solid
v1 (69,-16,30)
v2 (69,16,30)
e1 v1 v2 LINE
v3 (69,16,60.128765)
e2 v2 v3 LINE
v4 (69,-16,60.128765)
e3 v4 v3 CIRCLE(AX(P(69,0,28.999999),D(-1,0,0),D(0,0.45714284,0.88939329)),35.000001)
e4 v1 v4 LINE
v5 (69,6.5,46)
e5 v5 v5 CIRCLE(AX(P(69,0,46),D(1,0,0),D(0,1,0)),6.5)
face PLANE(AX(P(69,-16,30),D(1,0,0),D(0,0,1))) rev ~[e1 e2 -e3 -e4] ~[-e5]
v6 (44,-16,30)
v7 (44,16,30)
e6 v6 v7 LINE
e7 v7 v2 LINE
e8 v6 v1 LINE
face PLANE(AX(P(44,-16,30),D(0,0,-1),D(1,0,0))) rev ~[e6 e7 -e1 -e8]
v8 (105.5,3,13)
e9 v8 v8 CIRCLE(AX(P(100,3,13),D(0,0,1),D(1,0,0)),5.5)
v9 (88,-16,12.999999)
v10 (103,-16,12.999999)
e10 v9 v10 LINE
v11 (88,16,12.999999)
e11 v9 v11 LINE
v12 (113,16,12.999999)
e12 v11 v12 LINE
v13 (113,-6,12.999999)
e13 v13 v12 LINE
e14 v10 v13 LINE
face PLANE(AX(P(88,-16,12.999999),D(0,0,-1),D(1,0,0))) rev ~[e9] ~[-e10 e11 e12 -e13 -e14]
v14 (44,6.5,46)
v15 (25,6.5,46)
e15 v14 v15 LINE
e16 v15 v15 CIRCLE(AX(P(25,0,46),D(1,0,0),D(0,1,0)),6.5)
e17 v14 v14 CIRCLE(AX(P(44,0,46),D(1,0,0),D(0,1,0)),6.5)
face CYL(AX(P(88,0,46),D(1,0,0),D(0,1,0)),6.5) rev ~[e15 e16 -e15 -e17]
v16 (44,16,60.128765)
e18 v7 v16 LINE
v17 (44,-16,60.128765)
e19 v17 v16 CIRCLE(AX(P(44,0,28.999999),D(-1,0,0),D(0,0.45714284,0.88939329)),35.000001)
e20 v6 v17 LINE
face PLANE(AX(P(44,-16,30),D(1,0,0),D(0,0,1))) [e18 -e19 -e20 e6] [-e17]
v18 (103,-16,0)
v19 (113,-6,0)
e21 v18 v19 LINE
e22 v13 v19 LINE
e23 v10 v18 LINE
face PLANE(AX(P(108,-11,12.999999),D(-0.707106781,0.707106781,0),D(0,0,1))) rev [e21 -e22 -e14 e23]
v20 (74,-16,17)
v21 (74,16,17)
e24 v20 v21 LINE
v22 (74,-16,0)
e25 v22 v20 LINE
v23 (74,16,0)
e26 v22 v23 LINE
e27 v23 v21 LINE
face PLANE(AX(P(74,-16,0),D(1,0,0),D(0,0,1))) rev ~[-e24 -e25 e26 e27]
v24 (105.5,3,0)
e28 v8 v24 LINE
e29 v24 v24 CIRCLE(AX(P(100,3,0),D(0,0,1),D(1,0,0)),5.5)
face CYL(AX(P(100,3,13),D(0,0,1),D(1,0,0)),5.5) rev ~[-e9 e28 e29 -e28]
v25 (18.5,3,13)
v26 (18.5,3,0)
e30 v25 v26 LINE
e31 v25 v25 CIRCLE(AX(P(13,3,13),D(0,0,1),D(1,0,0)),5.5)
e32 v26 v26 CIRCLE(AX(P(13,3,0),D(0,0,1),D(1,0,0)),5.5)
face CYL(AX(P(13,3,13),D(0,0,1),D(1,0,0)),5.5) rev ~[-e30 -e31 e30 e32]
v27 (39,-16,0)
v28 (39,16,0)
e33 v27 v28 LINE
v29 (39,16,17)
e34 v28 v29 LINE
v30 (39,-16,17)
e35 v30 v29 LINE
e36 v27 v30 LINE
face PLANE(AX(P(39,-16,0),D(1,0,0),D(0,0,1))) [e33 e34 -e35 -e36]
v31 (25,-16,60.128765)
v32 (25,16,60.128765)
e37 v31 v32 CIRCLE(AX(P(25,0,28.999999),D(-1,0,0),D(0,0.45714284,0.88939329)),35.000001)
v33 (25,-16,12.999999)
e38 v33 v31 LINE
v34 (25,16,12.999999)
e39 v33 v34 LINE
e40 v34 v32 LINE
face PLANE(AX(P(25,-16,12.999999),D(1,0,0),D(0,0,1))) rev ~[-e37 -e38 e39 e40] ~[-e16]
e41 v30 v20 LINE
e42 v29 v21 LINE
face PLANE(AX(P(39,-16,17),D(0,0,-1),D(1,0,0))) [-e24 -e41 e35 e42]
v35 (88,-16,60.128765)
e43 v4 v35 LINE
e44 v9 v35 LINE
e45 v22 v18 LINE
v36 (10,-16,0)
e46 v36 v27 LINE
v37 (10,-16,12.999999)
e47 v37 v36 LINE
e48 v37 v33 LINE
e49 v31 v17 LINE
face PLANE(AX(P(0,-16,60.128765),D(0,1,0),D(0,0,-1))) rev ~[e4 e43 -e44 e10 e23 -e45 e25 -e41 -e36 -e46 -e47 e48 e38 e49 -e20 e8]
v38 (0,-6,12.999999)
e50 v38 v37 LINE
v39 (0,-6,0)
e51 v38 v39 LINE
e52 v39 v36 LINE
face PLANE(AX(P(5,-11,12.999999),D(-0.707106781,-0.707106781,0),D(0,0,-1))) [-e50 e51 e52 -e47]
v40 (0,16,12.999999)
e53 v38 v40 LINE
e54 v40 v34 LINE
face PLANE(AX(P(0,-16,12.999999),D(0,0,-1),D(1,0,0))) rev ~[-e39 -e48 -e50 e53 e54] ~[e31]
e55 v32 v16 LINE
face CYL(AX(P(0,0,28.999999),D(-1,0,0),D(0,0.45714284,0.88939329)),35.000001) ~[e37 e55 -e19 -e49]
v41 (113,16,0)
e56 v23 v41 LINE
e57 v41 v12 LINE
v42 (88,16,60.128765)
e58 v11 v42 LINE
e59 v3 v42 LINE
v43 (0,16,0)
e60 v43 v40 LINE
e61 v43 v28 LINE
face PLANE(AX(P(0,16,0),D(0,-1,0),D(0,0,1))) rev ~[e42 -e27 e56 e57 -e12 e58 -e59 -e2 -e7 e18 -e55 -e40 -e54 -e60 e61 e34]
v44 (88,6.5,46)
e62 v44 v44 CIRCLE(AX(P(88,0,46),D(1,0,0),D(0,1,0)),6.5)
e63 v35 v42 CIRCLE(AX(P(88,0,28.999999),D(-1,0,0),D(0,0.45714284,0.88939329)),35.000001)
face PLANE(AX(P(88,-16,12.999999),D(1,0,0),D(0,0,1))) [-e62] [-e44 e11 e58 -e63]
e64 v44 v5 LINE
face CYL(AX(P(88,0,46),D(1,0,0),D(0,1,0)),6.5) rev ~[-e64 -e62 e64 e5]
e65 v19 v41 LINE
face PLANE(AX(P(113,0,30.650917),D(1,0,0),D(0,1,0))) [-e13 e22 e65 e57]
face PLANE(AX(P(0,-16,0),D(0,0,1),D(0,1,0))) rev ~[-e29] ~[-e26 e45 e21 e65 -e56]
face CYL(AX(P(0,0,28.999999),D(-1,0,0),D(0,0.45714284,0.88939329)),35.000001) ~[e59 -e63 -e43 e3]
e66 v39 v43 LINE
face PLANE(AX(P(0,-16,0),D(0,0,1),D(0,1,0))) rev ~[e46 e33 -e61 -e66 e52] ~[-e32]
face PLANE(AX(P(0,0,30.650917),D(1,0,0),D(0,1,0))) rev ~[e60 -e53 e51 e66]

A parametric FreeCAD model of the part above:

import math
import FreeCAD as App
import Part
import Sketcher

V = App.Vector
Q = App.Units.Quantity


def edges_at(feature, points):
    """Names of the edges that pass closest to the given points."""
    edges = feature.Shape.Edges
    near = lambda p: min(range(len(edges)), key=lambda i: edges[i].distToShape(Part.Vertex(*p))[0])
    return sorted({f"Edge{near(p) + 1}" for p in points})


def add_polygon(sketch, points):
    """Adds a closed chain of lines whose ends are joined by coincident constraints."""
    first, n = sketch.GeometryCount, len(points)
    for a, b in zip(points, points[1:] + points[:1]):
        sketch.addGeometry(Part.LineSegment(App.Vector(*a, 0), App.Vector(*b, 0)), False)
    for i in range(n):
        sketch.addConstraint(Sketcher.Constraint("Coincident", first + i, 2, first + (i + 1) % n, 1))

doc = App.newDocument("Part")
body = doc.addObject("PartDesign::Body", "Body")

# Sketch on YZ plane
sketch1 = body.newObject("Sketcher::SketchObject", "Sketch")
sketch1.AttachmentSupport = (doc.getObject("YZ_Plane"), [""])
sketch1.MapMode = "FlatFace"
sketch1.addGeometry([
    Part.LineSegment(V(-16, 0, 0), V(16, 0, 0)),
    Part.LineSegment(V(16, 0, 0), V(16, 60, 0)),
    Part.ArcOfCircle(Part.Circle(V(0, 29, 0), V(0, 0, 1), 35), math.radians(63), math.radians(117)),
    Part.LineSegment(V(-16, 60, 0), V(-16, 0, 0)),
], False)
sketch1.addConstraint([
    Sketcher.Constraint("Coincident", 0, 2, 1, 1),
    Sketcher.Constraint("Coincident", 1, 2, 2, 1),
    Sketcher.Constraint("Coincident", 2, 2, 3, 1),
    Sketcher.Constraint("Coincident", 3, 2, 0, 1),
    Sketcher.Constraint("Horizontal", 0),
    Sketcher.Constraint("Vertical", 1),
    Sketcher.Constraint("Vertical", 3),
    Sketcher.Constraint("Symmetric", 0, 2, 3, 2, -1, 1),
    Sketcher.Constraint("PointOnObject", 2, 3, -2),
    Sketcher.Constraint("Radius", 2, Q("35.000001 mm")),
    Sketcher.Constraint("DistanceX", 0, 1, 0, 2, Q("32 mm")),
    Sketcher.Constraint("DistanceY", -1, 1, 2, 3, Q("28.999999 mm")),
])
pad1 = body.newObject("PartDesign::Pad", "Pad")
pad1.Profile = sketch1
pad1.Length = 113

# Sketch on XZ plane
sketch2 = body.newObject("Sketcher::SketchObject", "Sketch001")
sketch2.AttachmentSupport = (doc.getObject("XZ_Plane"), [""])
sketch2.MapMode = "FlatFace"
sketch2.AttachmentOffset = App.Placement(V(0, 0, 16), App.Rotation())
add_polygon(sketch2, [(44, 182), (44, 30), (69, 30), (69, 182)])  # lines 0-3
add_polygon(sketch2, [(88, 139), (88, 13), (113, 13), (113, 139)])  # lines 4-7
add_polygon(sketch2, [(0, 139), (0, 13), (25, 13), (25, 139)])  # lines 8-11
add_polygon(sketch2, [(39, 17), (39, 0), (74, 0), (74, 17)])  # lines 12-15
sketch2.addConstraint([
    Sketcher.Constraint("Vertical", 0),
    Sketcher.Constraint("Horizontal", 1),
    Sketcher.Constraint("Vertical", 2),
    Sketcher.Constraint("Horizontal", 3),
    Sketcher.Constraint("Vertical", 4),
    Sketcher.Constraint("Horizontal", 5),
    Sketcher.Constraint("Vertical", 6),
    Sketcher.Constraint("Horizontal", 7),
    Sketcher.Constraint("Vertical", 8),
    Sketcher.Constraint("Horizontal", 9),
    Sketcher.Constraint("Vertical", 10),
    Sketcher.Constraint("Horizontal", 11),
    Sketcher.Constraint("Vertical", 12),
    Sketcher.Constraint("Horizontal", 13),
    Sketcher.Constraint("Vertical", 14),
    Sketcher.Constraint("Horizontal", 15),
    Sketcher.Constraint("PointOnObject", 8, 2, -2),
    Sketcher.Constraint("PointOnObject", 12, 2, -1),
    Sketcher.Constraint("Horizontal", 5, 2, 8, 2),
    Sketcher.Constraint("Horizontal", 7, 2, 10, 2),
    Sketcher.Constraint("Equal", 3, 5),
    Sketcher.Constraint("Equal", 7, 9),
    Sketcher.Constraint("DistanceX", 1, 1, 1, 2, Q("25 mm")),
    Sketcher.Constraint("DistanceX", 13, 1, 13, 2, Q("35 mm")),
    Sketcher.Constraint("DistanceY", 12, 2, 12, 1, Q("17 mm")),
    Sketcher.Constraint("DistanceX", -1, 1, 0, 2, Q("44 mm")),
    Sketcher.Constraint("DistanceY", -1, 1, 0, 2, Q("30 mm")),
    Sketcher.Constraint("DistanceX", -1, 1, 4, 2, Q("88 mm")),
    Sketcher.Constraint("DistanceY", -1, 1, 4, 2, Q("12.999999 mm")),
    Sketcher.Constraint("DistanceX", -1, 1, 12, 2, Q("39 mm")),
    Sketcher.Constraint("DistanceY", 4, 2, 4, 1, Q("125.694361 mm")),
    Sketcher.Constraint("DistanceY", 0, 2, 0, 1, Q("151.750604 mm")),
])
pocket1 = body.newObject("PartDesign::Pocket", "Pocket")
pocket1.Profile = sketch2
pocket1.Type = "ThroughAll"
doc.recompute()

chamfer = body.newObject("PartDesign::Chamfer", "Chamfer")
chamfer.Base = (pocket1, edges_at(pocket1, [(0, -16, 6.5), (113, -16, 6.5)]))
chamfer.Size = 10

# Sketch on XY plane
sketch3 = body.newObject("Sketcher::SketchObject", "Sketch002")
sketch3.AttachmentSupport = (doc.getObject("XY_Plane"), [""])
sketch3.MapMode = "FlatFace"
sketch3.AttachmentOffset = App.Placement(V(0, 0, 13), App.Rotation())
sketch3.addGeometry([
    Part.Circle(V(100, 3, 0), V(0, 0, 1), 6),
    Part.Circle(V(13, 3, 0), V(0, 0, 1), 6),
], False)
sketch3.addConstraint([
    Sketcher.Constraint("Equal", 0, 1),
    Sketcher.Constraint("Horizontal", 0, 3, 1, 3),
    Sketcher.Constraint("Diameter", 0, Q("11 mm")),
    Sketcher.Constraint("DistanceX", -1, 1, 0, 3, Q("100 mm")),
    Sketcher.Constraint("DistanceY", -1, 1, 0, 3, Q("3 mm")),
    Sketcher.Constraint("DistanceX", -1, 1, 1, 3, Q("13 mm")),
])
pocket2 = body.newObject("PartDesign::Pocket", "Pocket001")
pocket2.Profile = sketch3
pocket2.Length = 25

# Sketch on YZ plane
sketch4 = body.newObject("Sketcher::SketchObject", "Sketch003")
sketch4.AttachmentSupport = (doc.getObject("YZ_Plane"), [""])
sketch4.MapMode = "FlatFace"
sketch4.AttachmentOffset = App.Placement(V(0, 0, 88), App.Rotation())
sketch4.addGeometry(Part.Circle(V(0, 46, 0), V(0, 0, 1), 6), False)
sketch4.addConstraint([
    Sketcher.Constraint("PointOnObject", 0, 3, -2),
    Sketcher.Constraint("Diameter", 0, Q("13 mm")),
    Sketcher.Constraint("DistanceY", -1, 1, 0, 3, Q("46 mm")),
])
pocket3 = body.newObject("PartDesign::Pocket", "Pocket002")
pocket3.Profile = sketch4
pocket3.Type = "ThroughAll"

doc.recompute()
